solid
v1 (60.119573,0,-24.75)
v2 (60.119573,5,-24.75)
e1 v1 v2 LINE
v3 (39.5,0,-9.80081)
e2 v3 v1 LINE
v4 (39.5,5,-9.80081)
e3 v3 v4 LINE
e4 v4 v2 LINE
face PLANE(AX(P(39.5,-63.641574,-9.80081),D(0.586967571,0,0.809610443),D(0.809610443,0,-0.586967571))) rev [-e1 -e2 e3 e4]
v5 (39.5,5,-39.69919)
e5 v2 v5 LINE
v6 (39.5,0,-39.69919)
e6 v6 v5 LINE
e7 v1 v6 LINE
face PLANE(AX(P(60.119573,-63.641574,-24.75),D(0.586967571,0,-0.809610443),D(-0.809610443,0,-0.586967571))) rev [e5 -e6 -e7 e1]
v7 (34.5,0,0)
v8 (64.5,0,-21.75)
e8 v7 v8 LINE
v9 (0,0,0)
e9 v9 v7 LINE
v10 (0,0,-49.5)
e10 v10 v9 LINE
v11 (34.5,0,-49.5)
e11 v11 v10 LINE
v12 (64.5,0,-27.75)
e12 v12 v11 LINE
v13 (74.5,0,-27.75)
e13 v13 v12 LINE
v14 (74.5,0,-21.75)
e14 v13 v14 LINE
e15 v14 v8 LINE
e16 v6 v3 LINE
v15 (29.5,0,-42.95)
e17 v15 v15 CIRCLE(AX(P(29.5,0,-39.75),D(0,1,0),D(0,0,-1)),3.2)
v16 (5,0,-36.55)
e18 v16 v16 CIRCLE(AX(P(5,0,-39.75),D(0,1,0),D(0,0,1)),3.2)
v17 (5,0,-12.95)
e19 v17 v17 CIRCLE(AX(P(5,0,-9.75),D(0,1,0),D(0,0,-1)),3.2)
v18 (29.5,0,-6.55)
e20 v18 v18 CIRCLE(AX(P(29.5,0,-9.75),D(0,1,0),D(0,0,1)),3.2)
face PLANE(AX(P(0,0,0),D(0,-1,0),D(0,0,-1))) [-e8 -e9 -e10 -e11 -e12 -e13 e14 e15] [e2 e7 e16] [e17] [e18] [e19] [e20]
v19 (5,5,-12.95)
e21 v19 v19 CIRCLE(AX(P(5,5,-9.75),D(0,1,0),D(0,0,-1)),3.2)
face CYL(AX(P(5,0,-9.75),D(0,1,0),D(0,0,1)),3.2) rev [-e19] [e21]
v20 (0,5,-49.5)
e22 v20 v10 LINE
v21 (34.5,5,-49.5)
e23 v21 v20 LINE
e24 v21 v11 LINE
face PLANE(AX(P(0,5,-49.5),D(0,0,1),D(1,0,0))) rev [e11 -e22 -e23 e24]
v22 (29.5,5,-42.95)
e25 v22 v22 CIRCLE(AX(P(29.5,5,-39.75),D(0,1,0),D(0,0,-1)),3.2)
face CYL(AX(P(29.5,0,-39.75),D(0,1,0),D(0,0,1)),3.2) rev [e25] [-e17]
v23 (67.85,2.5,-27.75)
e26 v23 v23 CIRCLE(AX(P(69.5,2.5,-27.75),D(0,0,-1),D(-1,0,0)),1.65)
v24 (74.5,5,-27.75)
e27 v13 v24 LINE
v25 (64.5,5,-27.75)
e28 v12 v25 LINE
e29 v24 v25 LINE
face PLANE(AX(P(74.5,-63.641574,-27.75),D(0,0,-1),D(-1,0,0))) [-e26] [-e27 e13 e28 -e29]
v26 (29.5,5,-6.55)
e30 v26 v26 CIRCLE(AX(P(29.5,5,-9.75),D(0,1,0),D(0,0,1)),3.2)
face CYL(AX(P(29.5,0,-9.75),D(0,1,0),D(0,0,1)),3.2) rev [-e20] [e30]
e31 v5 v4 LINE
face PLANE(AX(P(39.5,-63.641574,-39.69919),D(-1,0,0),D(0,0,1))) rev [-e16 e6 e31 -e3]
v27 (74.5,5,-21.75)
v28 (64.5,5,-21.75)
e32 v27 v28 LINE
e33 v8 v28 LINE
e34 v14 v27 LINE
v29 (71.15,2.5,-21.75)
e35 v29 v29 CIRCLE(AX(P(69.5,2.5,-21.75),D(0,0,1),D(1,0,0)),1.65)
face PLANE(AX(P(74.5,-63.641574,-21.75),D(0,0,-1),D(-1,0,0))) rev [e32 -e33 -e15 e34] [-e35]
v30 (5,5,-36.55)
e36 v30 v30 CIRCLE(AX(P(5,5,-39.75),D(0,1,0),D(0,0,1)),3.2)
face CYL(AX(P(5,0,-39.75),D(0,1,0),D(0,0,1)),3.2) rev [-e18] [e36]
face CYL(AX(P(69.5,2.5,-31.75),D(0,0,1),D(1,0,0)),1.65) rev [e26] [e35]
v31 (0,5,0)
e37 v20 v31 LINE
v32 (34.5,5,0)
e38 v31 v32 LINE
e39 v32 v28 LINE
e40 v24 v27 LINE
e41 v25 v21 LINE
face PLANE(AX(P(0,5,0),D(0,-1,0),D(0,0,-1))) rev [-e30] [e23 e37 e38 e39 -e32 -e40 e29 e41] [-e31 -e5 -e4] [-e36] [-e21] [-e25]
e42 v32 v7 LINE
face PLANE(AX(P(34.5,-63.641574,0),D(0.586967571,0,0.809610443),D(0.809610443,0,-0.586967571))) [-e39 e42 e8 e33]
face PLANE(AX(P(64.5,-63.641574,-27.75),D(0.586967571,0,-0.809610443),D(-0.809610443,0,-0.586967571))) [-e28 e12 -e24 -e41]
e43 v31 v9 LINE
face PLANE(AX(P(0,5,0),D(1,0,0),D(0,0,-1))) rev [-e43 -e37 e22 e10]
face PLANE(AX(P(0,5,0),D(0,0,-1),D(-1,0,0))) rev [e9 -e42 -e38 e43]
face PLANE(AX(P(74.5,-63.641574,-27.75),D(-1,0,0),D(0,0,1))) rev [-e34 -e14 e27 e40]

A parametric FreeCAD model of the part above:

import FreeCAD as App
import Part
import Sketcher
from FreeCAD import Vector


def edges_at(feature, points):
    """Names of the edges that pass closest to the given points."""
    edges = feature.Shape.Edges
    near = lambda p: min(range(len(edges)), key=lambda i: edges[i].distToShape(Part.Vertex(*p))[0])
    return sorted({f"Edge{near(p) + 1}" for p in points})


def add_polygon(sketch, points):
    """Adds a closed chain of lines whose ends are joined by coincident constraints."""
    first, n = sketch.GeometryCount, len(points)
    for a, b in zip(points, points[1:] + points[:1]):
        sketch.addGeometry(Part.LineSegment(App.Vector(*a, 0), App.Vector(*b, 0)), False)
    for i in range(n):
        sketch.addConstraint(Sketcher.Constraint("Coincident", first + i, 2, first + (i + 1) % n, 1))

doc = App.newDocument("Part")
body = doc.addObject("PartDesign::Body", "Body")

# Sketch on XZ plane
sketch1 = body.newObject("Sketcher::SketchObject", "Sketch")
sketch1.AttachmentSupport = (doc.getObject("XZ_Plane"), [""])
sketch1.MapMode = "FlatFace"
add_polygon(sketch1, [(0, -49.5), (0, 0), (34.5, 0), (34.5, -49.5)])  # lines 0-3
sketch1.addConstraint([
    Sketcher.Constraint("Vertical", 0),
    Sketcher.Constraint("Horizontal", 1),
    Sketcher.Constraint("Vertical", 2),
    Sketcher.Constraint("Horizontal", 3),
    Sketcher.Constraint("Coincident", 0, 2, -1, 1),
    Sketcher.Constraint("DistanceX", 1, 1, 1, 2, 34.5),
    Sketcher.Constraint("DistanceY", 0, 1, 0, 2, 49.5),
])
pad1 = body.newObject("PartDesign::Pad", "Pad")
pad1.Profile = sketch1
pad1.Length = 5
pad1.Reversed = True

# Sketch on XZ plane
sketch2 = body.newObject("Sketcher::SketchObject", "Sketch001")
sketch2.AttachmentSupport = (doc.getObject("XZ_Plane"), [""])
sketch2.MapMode = "FlatFace"
sketch2.AttachmentOffset = App.Placement(Vector(0, 0, -5), App.Rotation())
sketch2.addGeometry([
    Part.Circle(Vector(5, -39.75, 0), Vector(0, 0, 1), 3.2),
    Part.Circle(Vector(5, -9.75, 0), Vector(0, 0, 1), 3.2),
    Part.Circle(Vector(29.5, -9.75, 0), Vector(0, 0, 1), 3.2),
    Part.Circle(Vector(29.5, -39.75, 0), Vector(0, 0, 1), 3.2),
], False)
sketch2.addConstraint([
    Sketcher.Constraint("Equal", 0, 1),
    Sketcher.Constraint("Equal", 1, 2),
    Sketcher.Constraint("Equal", 2, 3),
    Sketcher.Constraint("Horizontal", 1, 3, 2, 3),
    Sketcher.Constraint("Horizontal", 0, 3, 3, 3),
    Sketcher.Constraint("Vertical", 0, 3, 1, 3),
    Sketcher.Constraint("Vertical", 2, 3, 3, 3),
    Sketcher.Constraint("Diameter", 0, 6.4),
    Sketcher.Constraint("DistanceX", -1, 1, 0, 3, 5.0),
    Sketcher.Constraint("DistanceY", 0, 3, 1, 3, 30.0),
    Sketcher.Constraint("DistanceX", -1, 1, 2, 3, 29.5),
    Sketcher.Constraint("DistanceY", 0, 3, -1, 1, 39.75),
])
pocket1 = body.newObject("PartDesign::Pocket", "Pocket")
pocket1.Profile = sketch2
pocket1.Length = 5
pocket1.Reversed = True

# Sketch on XZ plane
sketch3 = body.newObject("Sketcher::SketchObject", "Sketch002")
sketch3.AttachmentSupport = (doc.getObject("XZ_Plane"), [""])
sketch3.MapMode = "FlatFace"
sketch3.AttachmentOffset = App.Placement(Vector(0, 0, -5), App.Rotation())
add_polygon(sketch3, [(189.75, -42.25), (34.5, -49.5), (34.5, -41.491282), (84.094916, -39.175255), (84.094916, -10.324745), (34.5, -8.008718), (34.5, 0), (189.75, -7.25)])  # lines 0-7
add_polygon(sketch3, [(171.053501, -35.114387), (171.053501, -14.385613), (89.094916, -10.558239), (89.094916, -38.941761)])  # lines 8-11
add_polygon(sketch3, [(184.13, -12.25), (178.13, -12.25), (178.13, -37.25), (184.13, -37.25)])  # lines 12-15
sketch3.addConstraint([
    Sketcher.Constraint("Vertical", 1),
    Sketcher.Constraint("Vertical", 3),
    Sketcher.Constraint("Vertical", 5),
    Sketcher.Constraint("Vertical", 7),
    Sketcher.Constraint("Vertical", 8),
    Sketcher.Constraint("Vertical", 10),
    Sketcher.Constraint("Horizontal", 12),
    Sketcher.Constraint("Vertical", 13),
    Sketcher.Constraint("Horizontal", 14),
    Sketcher.Constraint("Vertical", 15),
    Sketcher.Constraint("PointOnObject", 5, 2, -1),
    Sketcher.Constraint("Parallel", 0, 2),
    Sketcher.Constraint("Parallel", 4, 6),
    Sketcher.Constraint("Parallel", 6, 9),
    Sketcher.Constraint("Parallel", 2, 11),
    Sketcher.Constraint("Vertical", 1, 2, 4, 2),
    Sketcher.Constraint("Equal", 1, 5),
    Sketcher.Constraint("Equal", 2, 4),
    Sketcher.Constraint("DistanceX", 12, 2, 12, 1, 6.0),
    Sketcher.Constraint("DistanceY", 7, 2, 7, 1, 35.0),
    Sketcher.Constraint("DistanceY", 13, 2, 13, 1, 25.0),
    Sketcher.Constraint("DistanceX", 3, 2, 9, 2, 5.0),
    Sketcher.Constraint("DistanceY", 12, 2, 6, 2, 5.0),
    Sketcher.Constraint("DistanceX", -1, 1, 0, 2, 34.5),
    Sketcher.Constraint("DistanceY", 0, 2, -1, 1, 49.5),
    Sketcher.Constraint("DistanceX", -1, 1, 6, 2, 189.75),
    Sketcher.Constraint("DistanceX", -1, 1, 12, 2, 178.13),
    Sketcher.Constraint("DistanceY", 1, 1, 1, 2, 8.008718),
    Sketcher.Constraint("DistanceY", 3, 1, 3, 2, 28.85051),
    Sketcher.Constraint("DistanceY", 10, 2, 10, 1, 28.383521),
    Sketcher.Constraint("DistanceX", -1, 1, 8, 2, 171.053501),
    Sketcher.Constraint("DistanceY", 9, 2, -1, 1, 10.558239),
])
pad2 = body.newObject("PartDesign::Pad", "Pad001")
pad2.Profile = sketch3
pad2.Length = 5
doc.recompute()

fillet = body.newObject("PartDesign::Fillet", "Fillet")
fillet.Base = (pad2, edges_at(pad2, [
    (34.5, 2.5, -8.009),
    (84.095, 2.5, -10.325),
    (84.095, 2.5, -39.175),
    (34.5, 2.5, -41.491),
    (89.095, 2.5, -38.942),
    (89.095, 2.5, -10.558),
]))
fillet.Radius = 10
doc.recompute()

fillet2 = body.newObject("PartDesign::Fillet", "Fillet001")
fillet2.Base = (fillet, edges_at(fillet, [(171.054, 2.5, -35.114), (171.054, 2.5, -14.386)]))
fillet2.Radius = 5

# Sketch on XZ plane
sketch4 = body.newObject("Sketcher::SketchObject", "Sketch003")
sketch4.AttachmentSupport = (doc.getObject("XZ_Plane"), [""])
sketch4.MapMode = "FlatFace"
sketch4.AttachmentOffset = App.Placement(Vector(0, 0, -5), App.Rotation())
add_polygon(sketch4, [(34.5, -49.5), (34.5, 0), (200.684699, 0), (200.684699, -49.5)])  # lines 0-3
sketch4.addConstraint([
    Sketcher.Constraint("Vertical", 0),
    Sketcher.Constraint("Horizontal", 1),
    Sketcher.Constraint("Vertical", 2),
    Sketcher.Constraint("Horizontal", 3),
    Sketcher.Constraint("PointOnObject", 0, 2, -1),
    Sketcher.Constraint("DistanceY", 0, 1, 0, 2, 49.5),
    Sketcher.Constraint("DistanceX", -1, 1, 0, 2, 34.5),
    Sketcher.Constraint("DistanceX", 1, 1, 1, 2, 166.184699),
])
pocket2 = body.newObject("PartDesign::Pocket", "Pocket001")
pocket2.Profile = sketch4
pocket2.Length = 10
pocket2.Reversed = True

# Sketch on XZ plane
sketch5 = body.newObject("Sketcher::SketchObject", "Sketch004")
sketch5.AttachmentSupport = (doc.getObject("XZ_Plane"), [""])
sketch5.MapMode = "FlatFace"
sketch5.AttachmentOffset = App.Placement(Vector(0, 0, -5), App.Rotation())
add_polygon(sketch5, [(64.5, -27.75), (34.5, -49.5), (34.5, 0), (64.5, -21.75), (74.5, -21.75), (74.5, -27.75)])  # lines 0-5
add_polygon(sketch5, [(39.5, -39.69919), (60.119573, -24.75), (39.5, -9.80081)])  # lines 6-8
sketch5.addConstraint([
    Sketcher.Constraint("Vertical", 1),
    Sketcher.Constraint("Horizontal", 3),
    Sketcher.Constraint("Vertical", 4),
    Sketcher.Constraint("Horizontal", 5),
    Sketcher.Constraint("Vertical", 8),
    Sketcher.Constraint("PointOnObject", 1, 2, -1),
    Sketcher.Constraint("Parallel", 0, 6),
    Sketcher.Constraint("Parallel", 2, 7),
    Sketcher.Constraint("Vertical", 2, 2, 5, 2),
    Sketcher.Constraint("Equal", 0, 2),
    Sketcher.Constraint("DistanceX", 3, 1, 3, 2, 10.0),
    Sketcher.Constraint("DistanceY", 4, 2, 4, 1, 6.0),
    Sketcher.Constraint("DistanceY", 1, 1, 1, 2, 49.5),
    Sketcher.Constraint("DistanceX", 1, 2, 2, 2, 30.0),
    Sketcher.Constraint("DistanceY", 6, 2, 2, 2, 3.0),
    Sketcher.Constraint("DistanceX", 1, 2, 7, 2, 5.0),
    Sketcher.Constraint("DistanceX", -1, 1, 0, 2, 34.5),
    Sketcher.Constraint("DistanceY", 8, 2, 8, 1, 29.898381),
])
pad3 = body.newObject("PartDesign::Pad", "Pad002")
pad3.Profile = sketch5
pad3.Length = 5

# Sketch on XY plane
sketch6 = body.newObject("Sketcher::SketchObject", "Sketch005")
sketch6.AttachmentSupport = (doc.getObject("XY_Plane"), [""])
sketch6.MapMode = "FlatFace"
sketch6.AttachmentOffset = App.Placement(Vector(0, 0, -21.75), App.Rotation())
sketch6.addGeometry(Part.Circle(Vector(69.5, 2.5, 0), Vector(0, 0, 1), 1.65), False)
sketch6.addConstraint([
    Sketcher.Constraint("Diameter", 0, 3.3),
    Sketcher.Constraint("DistanceX", -1, 1, 0, 3, 69.5),
    Sketcher.Constraint("DistanceY", -1, 1, 0, 3, 2.5),
])
pocket3 = body.newObject("PartDesign::Pocket", "Pocket002")
pocket3.Profile = sketch6
pocket3.Length = 10

doc.recompute()
